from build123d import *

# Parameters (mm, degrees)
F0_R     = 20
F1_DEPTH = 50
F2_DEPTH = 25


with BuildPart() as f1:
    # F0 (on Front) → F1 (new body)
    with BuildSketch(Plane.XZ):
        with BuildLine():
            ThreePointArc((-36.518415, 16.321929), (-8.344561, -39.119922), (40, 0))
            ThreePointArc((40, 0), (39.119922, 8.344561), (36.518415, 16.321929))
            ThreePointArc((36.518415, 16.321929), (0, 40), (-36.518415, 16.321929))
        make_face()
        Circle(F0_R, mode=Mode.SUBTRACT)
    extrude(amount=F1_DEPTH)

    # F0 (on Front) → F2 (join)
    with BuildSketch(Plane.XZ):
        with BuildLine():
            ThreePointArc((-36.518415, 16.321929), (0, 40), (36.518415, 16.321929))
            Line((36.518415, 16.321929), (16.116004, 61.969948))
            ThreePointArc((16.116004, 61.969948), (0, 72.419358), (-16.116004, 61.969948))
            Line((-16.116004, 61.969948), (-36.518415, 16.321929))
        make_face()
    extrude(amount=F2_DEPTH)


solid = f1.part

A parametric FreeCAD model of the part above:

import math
import FreeCAD as App
import Part
import Sketcher

V = App.Vector

doc = App.newDocument("Part")
params = doc.addObject("Spreadsheet::Sheet", "Params")
for row, (alias, value) in enumerate([
    ("sketch1_diameter", "40 mm"),
    ("sketch1_radius", "40 mm"),
    ("pad1_length", "50 mm"),
    ("sketch2_radius", "40 mm"),
    ("sketch2_length", "50 mm"),
    ("pad2_length", "25 mm"),
], start=1):
    params.set(f"A{row}", alias)
    params.set(f"B{row}", "=" + value)
    params.setAlias(f"B{row}", alias)

body = doc.addObject("PartDesign::Body", "Body")

sketch1 = body.newObject("Sketcher::SketchObject", "Sketch")
sketch1.AttachmentSupport = (doc.getObject("XZ_Plane"), [""])
sketch1.MapMode = "FlatFace"
sketch1.addGeometry([
    Part.ArcOfCircle(Part.Circle(V(0, 0, 0), V(0, 0, 1), 40), math.radians(156), math.radians(360)),
    Part.ArcOfCircle(Part.Circle(V(0, 0, 0), V(0, 0, 1), 40), math.radians(0), math.radians(24)),
    Part.ArcOfCircle(Part.Circle(V(0, 0, 0), V(0, 0, 1), 40), math.radians(24), math.radians(156)),
    Part.Circle(V(0, 0, 0), V(0, 0, 1), 20),
], False)
sketch1.addConstraint([
    Sketcher.Constraint("Tangent", 0, 2, 1, 1),
    Sketcher.Constraint("Tangent", 1, 2, 2, 1),
    Sketcher.Constraint("Tangent", 2, 2, 0, 1),
    Sketcher.Constraint("Coincident", 0, 3, -1, 1),
    Sketcher.Constraint("Coincident", 3, 3, -1, 1),
    Sketcher.Constraint("PointOnObject", 0, 2, -1),
    Sketcher.Constraint("Horizontal", 1, 2, 2, 2),
    Sketcher.Constraint("Diameter", 3, 40.0),
    Sketcher.Constraint("Radius", 0, 40.0),
    Sketcher.Constraint("DistanceY", -1, 1, 1, 2, 16.321929),
])
sketch1.setExpression("Constraints[7]", "Params.sketch1_diameter")
sketch1.setExpression("Constraints[8]", "Params.sketch1_radius")
pad1 = body.newObject("PartDesign::Pad", "Pad")
pad1.Profile = sketch1
pad1.setExpression("Length", "Params.pad1_length")

sketch2 = body.newObject("Sketcher::SketchObject", "Sketch001")
sketch2.AttachmentSupport = (doc.getObject("XZ_Plane"), [""])
sketch2.MapMode = "FlatFace"
sketch2.addGeometry([
    Part.ArcOfCircle(Part.Circle(V(0, 0, 0), V(0, 0, 1), 40), math.radians(24), math.radians(156)),
    Part.LineSegment(V(37, 16, 0), V(16, 62, 0)),
    Part.ArcOfCircle(Part.Circle(V(0, 55, 0), V(0, 0, 1), 18), math.radians(24), math.radians(156)),
    Part.LineSegment(V(-16, 62, 0), V(-37, 16, 0)),
], False)
sketch2.addConstraint([
    Sketcher.Constraint("Tangent", 0, 1, 1, 1),
    Sketcher.Constraint("Tangent", 1, 2, 2, 1),
    Sketcher.Constraint("Tangent", 2, 2, 3, 1),
    Sketcher.Constraint("Tangent", 3, 2, 0, 2),
    Sketcher.Constraint("Coincident", 0, 3, -1, 1),
    Sketcher.Constraint("PointOnObject", 2, 3, -2),
    Sketcher.Constraint("Radius", 0, 40.0),
    Sketcher.Constraint("Distance", 1, 50.0),
    Sketcher.Constraint("Radius", 2, 17.652468),
])
sketch2.setExpression("Constraints[6]", "Params.sketch2_radius")
sketch2.setExpression("Constraints[7]", "Params.sketch2_length")
pad2 = body.newObject("PartDesign::Pad", "Pad001")
pad2.Profile = sketch2
pad2.setExpression("Length", "Params.pad2_length")

doc.recompute()
